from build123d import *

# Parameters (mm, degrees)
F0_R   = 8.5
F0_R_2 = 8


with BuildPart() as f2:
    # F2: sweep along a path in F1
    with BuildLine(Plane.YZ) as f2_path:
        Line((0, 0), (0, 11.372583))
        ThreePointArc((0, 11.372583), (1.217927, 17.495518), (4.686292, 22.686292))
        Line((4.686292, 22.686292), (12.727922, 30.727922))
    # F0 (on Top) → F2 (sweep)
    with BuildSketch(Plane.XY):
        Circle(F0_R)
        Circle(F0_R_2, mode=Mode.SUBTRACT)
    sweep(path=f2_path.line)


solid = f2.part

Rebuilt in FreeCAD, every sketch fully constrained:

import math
import FreeCAD as App
import Part
import Sketcher

V = App.Vector
Q = App.Units.Quantity

doc = App.newDocument("Part")
body = doc.addObject("PartDesign::Body", "Body")

sketch1 = body.newObject("Sketcher::SketchObject", "Sketch")
sketch1.AttachmentSupport = (doc.getObject("XY_Plane"), [""])
sketch1.MapMode = "FlatFace"
sketch1.addGeometry([
    Part.Circle(V(0, 0, 0), V(0, 0, 1), 8),
    Part.Circle(V(0, 0, 0), V(0, 0, 1), 8),
], False)
sketch1.addConstraint([
    Sketcher.Constraint("Coincident", 0, 3, -1, 1),
    Sketcher.Constraint("Coincident", 1, 3, -1, 1),
    Sketcher.Constraint("Diameter", 0, Q("17 mm")),
    Sketcher.Constraint("Diameter", 1, Q("16 mm")),
])

sketch2 = body.newObject("Sketcher::SketchObject", "Sketch001")
sketch2.AttachmentSupport = (doc.getObject("YZ_Plane"), [""])
sketch2.MapMode = "FlatFace"
sketch2.addGeometry([
    Part.LineSegment(V(0, 0, 0), V(0, 11, 0)),
    Part.ArcOfCircle(Part.Circle(V(16, 11, 0), V(0, 0, 1), 16), math.radians(135), math.radians(180)),
    Part.LineSegment(V(5, 23, 0), V(13, 31, 0)),
], False)
sketch2.addConstraint([
    Sketcher.Constraint("Tangent", 0, 2, 1, 2),
    Sketcher.Constraint("Tangent", 1, 1, 2, 1),
    Sketcher.Constraint("Vertical", 0),
    Sketcher.Constraint("Coincident", 0, 1, -1, 1),
    Sketcher.Constraint("Angle", 2, Q("45 deg")),
    Sketcher.Constraint("Radius", 1, Q("15.999994 mm")),
    Sketcher.Constraint("DistanceY", 0, 1, 0, 2, Q("11.372583 mm")),
    Sketcher.Constraint("DistanceY", -1, 1, 2, 2, Q("30.727922 mm")),
])
doc.recompute()

additivepipe = body.newObject("PartDesign::AdditivePipe", "AdditivePipe")
additivepipe.Profile = sketch1
additivepipe.Spine = (sketch2, ["Edge1", "Edge2", "Edge3"])

doc.recompute()
